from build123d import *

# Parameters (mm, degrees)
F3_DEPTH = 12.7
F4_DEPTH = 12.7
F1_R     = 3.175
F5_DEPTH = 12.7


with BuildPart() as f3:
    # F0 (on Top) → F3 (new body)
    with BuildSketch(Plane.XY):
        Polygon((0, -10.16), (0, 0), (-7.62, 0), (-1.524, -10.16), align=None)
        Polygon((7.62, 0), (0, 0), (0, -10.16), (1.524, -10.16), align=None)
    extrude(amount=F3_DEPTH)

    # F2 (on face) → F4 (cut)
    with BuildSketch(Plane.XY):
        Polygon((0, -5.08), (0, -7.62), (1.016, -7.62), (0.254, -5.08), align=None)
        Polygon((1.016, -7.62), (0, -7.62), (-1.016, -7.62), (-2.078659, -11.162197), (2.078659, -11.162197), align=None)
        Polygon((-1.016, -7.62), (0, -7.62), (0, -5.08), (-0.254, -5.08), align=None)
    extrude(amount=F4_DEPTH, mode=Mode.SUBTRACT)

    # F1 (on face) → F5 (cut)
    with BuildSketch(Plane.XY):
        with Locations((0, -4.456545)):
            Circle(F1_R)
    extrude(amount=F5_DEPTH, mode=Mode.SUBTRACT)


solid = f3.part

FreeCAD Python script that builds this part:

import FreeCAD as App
import Part
import Sketcher

V = App.Vector
Q = App.Units.Quantity

doc = App.newDocument("Part")
body = doc.addObject("PartDesign::Body", "Body")

sketch1 = body.newObject("Sketcher::SketchObject", "Sketch")
sketch1.AttachmentSupport = (doc.getObject("XY_Plane"), [""])
sketch1.MapMode = "FlatFace"
sketch1.addGeometry([
    Part.LineSegment(V(-7.6, 0, 0), V(-1.5, -10.2, 0)),
    Part.LineSegment(V(-1.5, -10.2, 0), V(1.5, -10.2, 0)),
    Part.LineSegment(V(1.5, -10.2, 0), V(7.6, 0, 0)),
    Part.LineSegment(V(7.6, 0, 0), V(-7.6, 0, 0)),
], False)
sketch1.addConstraint([
    Sketcher.Constraint("Coincident", 0, 2, 1, 1),
    Sketcher.Constraint("Coincident", 1, 2, 2, 1),
    Sketcher.Constraint("Coincident", 2, 2, 3, 1),
    Sketcher.Constraint("Coincident", 3, 2, 0, 1),
    Sketcher.Constraint("Horizontal", 1),
    Sketcher.Constraint("Horizontal", 3),
    Sketcher.Constraint("Symmetric", 2, 2, 3, 2, -1, 1),
    Sketcher.Constraint("Equal", 0, 2),
    Sketcher.Constraint("DistanceX", 3, 2, 3, 1, Q("0.6 in")),
    Sketcher.Constraint("DistanceX", 1, 1, 1, 2, Q("0.12 in")),
    Sketcher.Constraint("DistanceY", 0, 2, -1, 1, Q("0.4 in")),
])
pad1 = body.newObject("PartDesign::Pad", "Pad")
pad1.Profile = sketch1
pad1.Length = Q("0.5 in")

sketch2 = body.newObject("Sketcher::SketchObject", "Sketch001")
sketch2.AttachmentSupport = (doc.getObject("XY_Plane"), [""])
sketch2.MapMode = "FlatFace"
sketch2.addGeometry([
    Part.LineSegment(V(-1, -7.6, 0), V(-2.1, -11.2, 0)),
    Part.LineSegment(V(-2.1, -11.2, 0), V(2.1, -11.2, 0)),
    Part.LineSegment(V(2.1, -11.2, 0), V(1, -7.6, 0)),
    Part.LineSegment(V(1, -7.6, 0), V(0.3, -5.1, 0)),
    Part.LineSegment(V(0.3, -5.1, 0), V(-0.3, -5.1, 0)),
    Part.LineSegment(V(-0.3, -5.1, 0), V(-1, -7.6, 0)),
], False)
sketch2.addConstraint([
    Sketcher.Constraint("Coincident", 0, 2, 1, 1),
    Sketcher.Constraint("Coincident", 1, 2, 2, 1),
    Sketcher.Constraint("Coincident", 2, 2, 3, 1),
    Sketcher.Constraint("Coincident", 3, 2, 4, 1),
    Sketcher.Constraint("Coincident", 4, 2, 5, 1),
    Sketcher.Constraint("Coincident", 5, 2, 0, 1),
    Sketcher.Constraint("Horizontal", 1),
    Sketcher.Constraint("Horizontal", 4),
    Sketcher.Constraint("Symmetric", 2, 2, 5, 2, -2),
    Sketcher.Constraint("Parallel", 2, 3),
    Sketcher.Constraint("Parallel", 0, 5),
    Sketcher.Constraint("Equal", 0, 2),
    Sketcher.Constraint("DistanceX", 4, 2, 4, 1, Q("0.02 in")),
    Sketcher.Constraint("DistanceY", 2, 2, -1, 1, Q("0.3 in")),
    Sketcher.Constraint("DistanceY", 3, 2, -1, 1, Q("0.2 in")),
    Sketcher.Constraint("DistanceX", -1, 1, 2, 2, Q("0.04 in")),
    Sketcher.Constraint("DistanceX", 1, 1, 1, 2, Q("4.157318 mm")),
])
pocket1 = body.newObject("PartDesign::Pocket", "Pocket")
pocket1.Profile = sketch2
pocket1.Length = Q("0.5 in")
pocket1.Reversed = True

sketch3 = body.newObject("Sketcher::SketchObject", "Sketch002")
sketch3.AttachmentSupport = (doc.getObject("XY_Plane"), [""])
sketch3.MapMode = "FlatFace"
sketch3.addGeometry(Part.Circle(V(0, -4.5, 0), V(0, 0, 1), 3.2), False)
sketch3.addConstraint([
    Sketcher.Constraint("PointOnObject", 0, 3, -2),
    Sketcher.Constraint("Diameter", 0, Q("0.25 in")),
    Sketcher.Constraint("DistanceY", 0, 3, -1, 1, Q("4.456545 mm")),
])
pocket2 = body.newObject("PartDesign::Pocket", "Pocket001")
pocket2.Profile = sketch3
pocket2.Length = Q("0.5 in")
pocket2.Reversed = True

doc.recompute()
